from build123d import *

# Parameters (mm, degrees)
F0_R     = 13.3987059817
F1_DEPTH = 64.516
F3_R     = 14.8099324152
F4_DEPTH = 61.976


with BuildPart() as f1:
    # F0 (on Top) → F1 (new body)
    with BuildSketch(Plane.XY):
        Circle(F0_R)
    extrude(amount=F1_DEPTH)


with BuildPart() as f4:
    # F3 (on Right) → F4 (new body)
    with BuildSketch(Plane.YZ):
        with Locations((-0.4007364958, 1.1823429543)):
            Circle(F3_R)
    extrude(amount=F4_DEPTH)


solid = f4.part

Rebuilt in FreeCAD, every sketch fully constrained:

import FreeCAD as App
import Part
import Sketcher
Q = App.Units.Quantity

doc = App.newDocument("Part")
body = doc.addObject("PartDesign::Body", "Body")

# Sketch on XY plane
sketch1 = body.newObject("Sketcher::SketchObject", "Sketch")
sketch1.AttachmentSupport = (doc.getObject("XY_Plane"), [""])
sketch1.MapMode = "FlatFace"
sketch1.addGeometry(Part.Circle(App.Vector(0, 0, 0), App.Vector(0, 0, 1), 13), False)
sketch1.addConstraint([
    Sketcher.Constraint("Coincident", 0, 3, -1, 1),
    Sketcher.Constraint("Diameter", 0, 26.797412),
])
pad1 = body.newObject("PartDesign::Pad", "Pad")
pad1.Profile = sketch1
pad1.Length = Q("2.54 in")
body2 = doc.addObject("PartDesign::Body", "Body001")

# Sketch on YZ plane
sketch2 = body2.newObject("Sketcher::SketchObject", "Sketch001")
sketch2.AttachmentSupport = (doc.getObject("YZ_Plane001"), [""])
sketch2.MapMode = "FlatFace"
sketch2.addGeometry(Part.Circle(App.Vector(0, 1, 0), App.Vector(0, 0, 1), 15), False)
sketch2.addConstraint([
    Sketcher.Constraint("Diameter", 0, 29.619865),
    Sketcher.Constraint("DistanceX", 0, 3, -1, 1, 0.400736),
    Sketcher.Constraint("DistanceY", -1, 1, 0, 3, 1.182343),
])
pad2 = body2.newObject("PartDesign::Pad", "Pad001")
pad2.Profile = sketch2
pad2.Length = Q("2.44 in")
body.Visibility = False

doc.recompute()
